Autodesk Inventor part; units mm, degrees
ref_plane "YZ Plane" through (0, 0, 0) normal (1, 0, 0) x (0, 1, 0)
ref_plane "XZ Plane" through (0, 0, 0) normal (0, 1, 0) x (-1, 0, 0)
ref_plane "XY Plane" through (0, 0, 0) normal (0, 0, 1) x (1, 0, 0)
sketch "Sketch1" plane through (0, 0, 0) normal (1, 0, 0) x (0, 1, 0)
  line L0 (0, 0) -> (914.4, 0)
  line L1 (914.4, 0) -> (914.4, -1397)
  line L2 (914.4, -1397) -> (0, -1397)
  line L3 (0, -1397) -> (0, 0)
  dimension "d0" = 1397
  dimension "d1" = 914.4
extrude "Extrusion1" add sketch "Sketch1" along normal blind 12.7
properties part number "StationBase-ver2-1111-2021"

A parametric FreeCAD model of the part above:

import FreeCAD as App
import Part
import Sketcher
from FreeCAD import Vector
Q = App.Units.Quantity

doc = App.newDocument("Part")
body = doc.addObject("PartDesign::Body", "Body")

# Sketch on YZ plane
sketch1 = body.newObject("Sketcher::SketchObject", "Sketch")
sketch1.AttachmentSupport = (doc.getObject("YZ_Plane"), [""])
sketch1.MapMode = "FlatFace"
sketch1.addGeometry([
    Part.LineSegment(Vector(914, 0, 0), Vector(0, 0, 0)),
    Part.LineSegment(Vector(0, 0, 0), Vector(0, -1397, 0)),
    Part.LineSegment(Vector(0, -1397, 0), Vector(914, -1397, 0)),
    Part.LineSegment(Vector(914, -1397, 0), Vector(914, 0, 0)),
], False)
sketch1.addConstraint([
    Sketcher.Constraint("Coincident", 0, 2, 1, 1),
    Sketcher.Constraint("Coincident", 1, 2, 2, 1),
    Sketcher.Constraint("Coincident", 2, 2, 3, 1),
    Sketcher.Constraint("Coincident", 3, 2, 0, 1),
    Sketcher.Constraint("Horizontal", 0),
    Sketcher.Constraint("Vertical", 1),
    Sketcher.Constraint("Horizontal", 2),
    Sketcher.Constraint("Vertical", 3),
    Sketcher.Constraint("Coincident", 0, 2, -1, 1),
    Sketcher.Constraint("DistanceX", 0, 2, 0, 1, Q("36 in")),
    Sketcher.Constraint("DistanceY", 1, 2, 1, 1, Q("55 in")),
])
pad1 = body.newObject("PartDesign::Pad", "Pad")
pad1.Profile = sketch1
pad1.Length = Q("0.5 in")

doc.recompute()
